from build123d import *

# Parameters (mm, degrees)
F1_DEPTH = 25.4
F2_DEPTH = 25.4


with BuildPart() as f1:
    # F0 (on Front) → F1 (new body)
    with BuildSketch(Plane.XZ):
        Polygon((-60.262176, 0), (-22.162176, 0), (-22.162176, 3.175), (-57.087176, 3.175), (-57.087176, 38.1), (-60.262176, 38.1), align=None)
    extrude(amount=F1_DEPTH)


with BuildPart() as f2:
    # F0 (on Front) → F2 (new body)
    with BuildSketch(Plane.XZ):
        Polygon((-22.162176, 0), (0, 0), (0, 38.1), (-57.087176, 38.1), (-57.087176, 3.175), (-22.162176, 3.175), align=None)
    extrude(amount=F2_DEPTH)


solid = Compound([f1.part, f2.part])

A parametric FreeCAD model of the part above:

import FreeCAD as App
import Part
import Sketcher
Q = App.Units.Quantity


def add_polygon(sketch, points):
    """Adds a closed chain of lines whose ends are joined by coincident constraints."""
    first, n = sketch.GeometryCount, len(points)
    for a, b in zip(points, points[1:] + points[:1]):
        sketch.addGeometry(Part.LineSegment(App.Vector(*a, 0), App.Vector(*b, 0)), False)
    for i in range(n):
        sketch.addConstraint(Sketcher.Constraint("Coincident", first + i, 2, first + (i + 1) % n, 1))

doc = App.newDocument("Part")
body = doc.addObject("PartDesign::Body", "Body")

# Sketch on XZ plane
sketch1 = body.newObject("Sketcher::SketchObject", "Sketch")
sketch1.AttachmentSupport = (doc.getObject("XZ_Plane"), [""])
sketch1.MapMode = "FlatFace"
add_polygon(sketch1, [(-60.3, 0), (-22.2, 0), (-22.2, 3.2), (-57.1, 3.2), (-57.1, 38.1), (-60.3, 38.1)])  # lines 0-5
sketch1.addConstraint([
    Sketcher.Constraint("Horizontal", 0),
    Sketcher.Constraint("Vertical", 1),
    Sketcher.Constraint("Horizontal", 2),
    Sketcher.Constraint("Vertical", 3),
    Sketcher.Constraint("Horizontal", 4),
    Sketcher.Constraint("Vertical", 5),
    Sketcher.Constraint("PointOnObject", 0, 2, -1),
    Sketcher.Constraint("Equal", 4, 1),
    Sketcher.Constraint("Equal", 2, 3),
    Sketcher.Constraint("DistanceX", 0, 1, 0, 2, Q("1.5 in")),
    Sketcher.Constraint("DistanceX", 2, 2, 2, 1, Q("1.375 in")),
    Sketcher.Constraint("DistanceX", 0, 2, -1, 1, 22.162176),
])
pad1 = body.newObject("PartDesign::Pad", "Pad")
pad1.Profile = sketch1
pad1.Length = Q("1 in")
body2 = doc.addObject("PartDesign::Body", "Body001")

# Sketch on XZ plane
sketch2 = body2.newObject("Sketcher::SketchObject", "Sketch001")
sketch2.AttachmentSupport = (doc.getObject("XZ_Plane001"), [""])
sketch2.MapMode = "FlatFace"
add_polygon(sketch2, [(-22.2, 0), (0, 0), (0, 38.1), (-57.1, 38.1), (-57.1, 3.2), (-22.2, 3.2)])  # lines 0-5
sketch2.addConstraint([
    Sketcher.Constraint("Horizontal", 0),
    Sketcher.Constraint("Vertical", 1),
    Sketcher.Constraint("Horizontal", 2),
    Sketcher.Constraint("Vertical", 3),
    Sketcher.Constraint("Horizontal", 4),
    Sketcher.Constraint("Vertical", 5),
    Sketcher.Constraint("Coincident", 0, 2, -1, 1),
    Sketcher.Constraint("Equal", 4, 3),
    Sketcher.Constraint("DistanceY", 1, 1, 1, 2, Q("1.5 in")),
    Sketcher.Constraint("DistanceX", 4, 1, 4, 2, Q("1.375 in")),
    Sketcher.Constraint("DistanceX", 0, 1, 0, 2, 22.162176),
])
pad2 = body2.newObject("PartDesign::Pad", "Pad001")
pad2.Profile = sketch2
pad2.Length = Q("1 in")

doc.recompute()
